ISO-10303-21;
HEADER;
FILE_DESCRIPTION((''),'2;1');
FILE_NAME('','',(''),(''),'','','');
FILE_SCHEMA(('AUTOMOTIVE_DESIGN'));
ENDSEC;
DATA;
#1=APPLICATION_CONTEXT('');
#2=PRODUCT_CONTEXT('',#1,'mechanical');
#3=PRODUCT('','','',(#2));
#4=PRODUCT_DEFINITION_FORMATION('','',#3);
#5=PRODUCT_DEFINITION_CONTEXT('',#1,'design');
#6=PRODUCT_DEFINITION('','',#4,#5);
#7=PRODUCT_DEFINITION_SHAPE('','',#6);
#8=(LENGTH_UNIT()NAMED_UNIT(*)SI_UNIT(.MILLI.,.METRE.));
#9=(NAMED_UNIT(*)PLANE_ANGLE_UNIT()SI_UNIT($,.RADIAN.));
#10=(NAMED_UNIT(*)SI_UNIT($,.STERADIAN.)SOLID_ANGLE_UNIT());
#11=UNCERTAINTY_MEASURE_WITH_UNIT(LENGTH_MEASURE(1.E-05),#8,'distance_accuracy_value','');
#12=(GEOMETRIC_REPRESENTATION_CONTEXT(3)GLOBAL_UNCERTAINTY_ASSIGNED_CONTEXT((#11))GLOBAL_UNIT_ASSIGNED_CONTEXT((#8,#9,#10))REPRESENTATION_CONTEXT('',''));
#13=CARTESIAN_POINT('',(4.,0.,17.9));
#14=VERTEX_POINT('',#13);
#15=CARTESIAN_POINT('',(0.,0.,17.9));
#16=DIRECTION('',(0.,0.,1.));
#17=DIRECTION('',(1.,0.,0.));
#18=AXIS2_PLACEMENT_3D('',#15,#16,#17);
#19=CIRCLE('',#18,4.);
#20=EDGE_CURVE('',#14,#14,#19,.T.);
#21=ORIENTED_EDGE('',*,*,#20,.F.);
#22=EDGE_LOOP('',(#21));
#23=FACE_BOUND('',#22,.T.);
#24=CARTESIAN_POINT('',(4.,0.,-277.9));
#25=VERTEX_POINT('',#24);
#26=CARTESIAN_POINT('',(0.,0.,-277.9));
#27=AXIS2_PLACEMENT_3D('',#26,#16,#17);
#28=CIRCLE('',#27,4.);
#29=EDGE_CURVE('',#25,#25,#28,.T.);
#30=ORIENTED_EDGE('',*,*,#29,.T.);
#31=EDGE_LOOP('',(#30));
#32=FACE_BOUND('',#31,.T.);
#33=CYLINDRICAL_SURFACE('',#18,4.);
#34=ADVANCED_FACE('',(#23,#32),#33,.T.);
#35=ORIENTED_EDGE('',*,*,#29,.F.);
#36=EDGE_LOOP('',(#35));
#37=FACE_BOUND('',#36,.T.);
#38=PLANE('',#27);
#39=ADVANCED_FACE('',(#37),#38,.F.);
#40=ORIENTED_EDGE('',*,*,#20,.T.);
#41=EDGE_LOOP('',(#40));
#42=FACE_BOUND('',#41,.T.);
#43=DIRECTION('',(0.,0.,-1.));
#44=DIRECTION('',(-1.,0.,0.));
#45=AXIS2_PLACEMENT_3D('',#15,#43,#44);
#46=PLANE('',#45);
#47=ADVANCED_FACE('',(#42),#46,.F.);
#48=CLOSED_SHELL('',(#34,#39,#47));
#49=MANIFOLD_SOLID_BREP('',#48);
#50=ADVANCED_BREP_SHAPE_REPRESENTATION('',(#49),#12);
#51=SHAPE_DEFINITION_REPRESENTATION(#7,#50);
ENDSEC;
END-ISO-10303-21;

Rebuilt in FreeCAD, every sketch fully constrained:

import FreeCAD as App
import Part
import Sketcher

V = App.Vector

doc = App.newDocument("Part")
body = doc.addObject("PartDesign::Body", "Body")

sketch1 = body.newObject("Sketcher::SketchObject", "Sketch")
sketch1.AttachmentSupport = (doc.getObject("YZ_Plane"), [""])
sketch1.MapMode = "FlatFace"
sketch1.addGeometry(Part.LineSegment(V(4, 17.9, 0), V(0, 17.9, 0)), False)
sketch1.addGeometry(Part.LineSegment(V(0, 17.9, 0), V(0, -277.9, 0)), False)
sketch1.addGeometry(Part.LineSegment(V(0, -277.9, 0), V(4, -277.9, 0)), False)
sketch1.addGeometry(Part.LineSegment(V(4, -277.9, 0), V(4, 17.9, 0)), False)
sketch1.addConstraint(Sketcher.Constraint("Coincident", 0, 2, 1, 1))
sketch1.addConstraint(Sketcher.Constraint("Coincident", 1, 2, 2, 1))
sketch1.addConstraint(Sketcher.Constraint("Coincident", 2, 2, 3, 1))
sketch1.addConstraint(Sketcher.Constraint("Coincident", 3, 2, 0, 1))
sketch1.addConstraint(Sketcher.Constraint("Horizontal", 0))
sketch1.addConstraint(Sketcher.Constraint("Vertical", 1))
sketch1.addConstraint(Sketcher.Constraint("Horizontal", 2))
sketch1.addConstraint(Sketcher.Constraint("Vertical", 3))
sketch1.addConstraint(Sketcher.Constraint("PointOnObject", 0, 2, -2))
sketch1.addConstraint(Sketcher.Constraint("DistanceX", 0, 2, 0, 1, 4.0))
sketch1.addConstraint(Sketcher.Constraint("DistanceY", 1, 2, 1, 1, 295.8))
sketch1.addConstraint(Sketcher.Constraint("DistanceY", -1, 1, 0, 2, 17.9))
revolution = body.newObject("PartDesign::Revolution", "Revolution")
revolution.Profile = sketch1
revolution.ReferenceAxis = (sketch1, ["V_Axis"])
revolution.Angle = 360

doc.recompute()
